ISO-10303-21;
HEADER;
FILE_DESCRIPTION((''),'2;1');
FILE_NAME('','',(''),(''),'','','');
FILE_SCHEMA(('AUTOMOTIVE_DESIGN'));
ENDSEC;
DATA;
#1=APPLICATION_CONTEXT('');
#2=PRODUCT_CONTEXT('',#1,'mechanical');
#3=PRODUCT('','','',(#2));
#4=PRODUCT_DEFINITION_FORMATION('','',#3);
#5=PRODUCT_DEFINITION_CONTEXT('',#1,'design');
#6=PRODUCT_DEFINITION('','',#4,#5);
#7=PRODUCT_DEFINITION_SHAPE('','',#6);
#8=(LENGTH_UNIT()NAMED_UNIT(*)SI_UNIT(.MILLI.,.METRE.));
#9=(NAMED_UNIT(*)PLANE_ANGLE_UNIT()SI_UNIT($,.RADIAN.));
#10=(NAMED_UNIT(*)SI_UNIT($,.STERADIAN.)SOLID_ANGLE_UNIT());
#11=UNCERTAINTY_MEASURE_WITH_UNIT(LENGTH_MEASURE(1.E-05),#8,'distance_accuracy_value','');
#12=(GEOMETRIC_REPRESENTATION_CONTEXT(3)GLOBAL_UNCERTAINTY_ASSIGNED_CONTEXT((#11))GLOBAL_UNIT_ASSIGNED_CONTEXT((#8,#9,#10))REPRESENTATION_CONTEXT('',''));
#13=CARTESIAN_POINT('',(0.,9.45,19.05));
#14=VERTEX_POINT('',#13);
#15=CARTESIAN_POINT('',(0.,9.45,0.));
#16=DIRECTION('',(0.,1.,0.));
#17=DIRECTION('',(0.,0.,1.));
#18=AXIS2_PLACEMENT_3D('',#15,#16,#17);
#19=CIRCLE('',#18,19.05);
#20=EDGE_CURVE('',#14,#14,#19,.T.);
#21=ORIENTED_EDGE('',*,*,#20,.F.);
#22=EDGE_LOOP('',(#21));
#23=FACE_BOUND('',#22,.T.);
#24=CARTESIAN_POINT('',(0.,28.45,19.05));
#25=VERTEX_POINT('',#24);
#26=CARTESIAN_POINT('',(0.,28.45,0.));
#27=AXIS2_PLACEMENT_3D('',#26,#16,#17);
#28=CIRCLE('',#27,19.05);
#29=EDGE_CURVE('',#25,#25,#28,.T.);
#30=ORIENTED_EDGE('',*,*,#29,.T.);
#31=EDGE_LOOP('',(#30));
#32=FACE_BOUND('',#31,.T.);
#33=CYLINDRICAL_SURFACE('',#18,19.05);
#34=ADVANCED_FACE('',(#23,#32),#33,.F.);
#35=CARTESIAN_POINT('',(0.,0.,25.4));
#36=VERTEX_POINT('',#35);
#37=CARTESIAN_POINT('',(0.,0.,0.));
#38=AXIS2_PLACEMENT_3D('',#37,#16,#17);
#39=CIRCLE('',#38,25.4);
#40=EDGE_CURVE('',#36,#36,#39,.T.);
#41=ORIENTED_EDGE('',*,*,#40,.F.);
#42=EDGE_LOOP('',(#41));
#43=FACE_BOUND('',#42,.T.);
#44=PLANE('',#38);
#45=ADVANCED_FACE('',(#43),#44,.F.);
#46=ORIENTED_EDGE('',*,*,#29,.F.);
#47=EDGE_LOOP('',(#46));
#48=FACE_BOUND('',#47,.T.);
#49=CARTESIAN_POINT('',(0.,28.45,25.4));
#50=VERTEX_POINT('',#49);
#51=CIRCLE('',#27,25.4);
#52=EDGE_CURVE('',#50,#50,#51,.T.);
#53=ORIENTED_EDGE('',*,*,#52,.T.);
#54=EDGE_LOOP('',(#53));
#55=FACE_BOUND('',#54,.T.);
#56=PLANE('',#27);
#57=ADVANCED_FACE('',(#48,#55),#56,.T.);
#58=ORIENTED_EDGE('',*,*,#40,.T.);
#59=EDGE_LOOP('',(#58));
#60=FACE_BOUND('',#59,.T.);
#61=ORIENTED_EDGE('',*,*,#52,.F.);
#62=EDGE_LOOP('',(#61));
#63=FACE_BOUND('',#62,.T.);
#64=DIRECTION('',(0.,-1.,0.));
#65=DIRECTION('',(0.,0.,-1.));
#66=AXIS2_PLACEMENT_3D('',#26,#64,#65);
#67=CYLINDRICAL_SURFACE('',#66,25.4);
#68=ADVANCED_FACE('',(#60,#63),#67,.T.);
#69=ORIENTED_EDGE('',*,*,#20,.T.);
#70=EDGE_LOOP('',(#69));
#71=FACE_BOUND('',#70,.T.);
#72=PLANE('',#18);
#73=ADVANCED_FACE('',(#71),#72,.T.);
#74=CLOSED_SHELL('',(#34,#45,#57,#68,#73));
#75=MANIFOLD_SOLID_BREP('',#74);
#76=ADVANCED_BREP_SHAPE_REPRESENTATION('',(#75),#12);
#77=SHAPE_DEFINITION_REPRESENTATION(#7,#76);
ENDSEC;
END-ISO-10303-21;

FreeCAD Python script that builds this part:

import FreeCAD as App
import Part
import Sketcher
Q = App.Units.Quantity

doc = App.newDocument("Part")
params = doc.addObject("Spreadsheet::Sheet", "Params")
for row, (alias, value) in enumerate([
    ("sketch1_diameter", "2 in"),
    ("pad1_length", "28.45 mm"),
    ("sketch2_diameter", "1.5 in"),
    ("pocket1_length", "19 mm"),
], start=1):
    params.set(f"A{row}", alias)
    params.set(f"B{row}", "=" + value)
    params.setAlias(f"B{row}", alias)

body = doc.addObject("PartDesign::Body", "Body")

# Sketch on XZ plane
sketch1 = body.newObject("Sketcher::SketchObject", "Sketch")
sketch1.AttachmentSupport = (doc.getObject("XZ_Plane"), [""])
sketch1.MapMode = "FlatFace"
sketch1.addGeometry(Part.Circle(App.Vector(0, 0, 0), App.Vector(0, 0, 1), 25.4), False)
sketch1.addConstraint([
    Sketcher.Constraint("Coincident", 0, 3, -1, 1),
    Sketcher.Constraint("Diameter", 0, Q("2 in")),
])
sketch1.setExpression("Constraints[1]", "Params.sketch1_diameter")
pad1 = body.newObject("PartDesign::Pad", "Pad")
pad1.Profile = sketch1
pad1.setExpression("Length", "Params.pad1_length")
pad1.Reversed = True

# Sketch on XZ plane
sketch2 = body.newObject("Sketcher::SketchObject", "Sketch001")
sketch2.AttachmentSupport = (doc.getObject("XZ_Plane"), [""])
sketch2.MapMode = "FlatFace"
sketch2.AttachmentOffset = App.Placement(App.Vector(0, 0, -28.45), App.Rotation())
sketch2.addGeometry(Part.Circle(App.Vector(0, 0, 0), App.Vector(0, 0, 1), 19.05), False)
sketch2.addConstraint([
    Sketcher.Constraint("Coincident", 0, 3, -1, 1),
    Sketcher.Constraint("Diameter", 0, Q("1.5 in")),
])
sketch2.setExpression("Constraints[1]", "Params.sketch2_diameter")
pocket1 = body.newObject("PartDesign::Pocket", "Pocket")
pocket1.Profile = sketch2
pocket1.setExpression("Length", "Params.pocket1_length")
pocket1.Reversed = True

doc.recompute()
